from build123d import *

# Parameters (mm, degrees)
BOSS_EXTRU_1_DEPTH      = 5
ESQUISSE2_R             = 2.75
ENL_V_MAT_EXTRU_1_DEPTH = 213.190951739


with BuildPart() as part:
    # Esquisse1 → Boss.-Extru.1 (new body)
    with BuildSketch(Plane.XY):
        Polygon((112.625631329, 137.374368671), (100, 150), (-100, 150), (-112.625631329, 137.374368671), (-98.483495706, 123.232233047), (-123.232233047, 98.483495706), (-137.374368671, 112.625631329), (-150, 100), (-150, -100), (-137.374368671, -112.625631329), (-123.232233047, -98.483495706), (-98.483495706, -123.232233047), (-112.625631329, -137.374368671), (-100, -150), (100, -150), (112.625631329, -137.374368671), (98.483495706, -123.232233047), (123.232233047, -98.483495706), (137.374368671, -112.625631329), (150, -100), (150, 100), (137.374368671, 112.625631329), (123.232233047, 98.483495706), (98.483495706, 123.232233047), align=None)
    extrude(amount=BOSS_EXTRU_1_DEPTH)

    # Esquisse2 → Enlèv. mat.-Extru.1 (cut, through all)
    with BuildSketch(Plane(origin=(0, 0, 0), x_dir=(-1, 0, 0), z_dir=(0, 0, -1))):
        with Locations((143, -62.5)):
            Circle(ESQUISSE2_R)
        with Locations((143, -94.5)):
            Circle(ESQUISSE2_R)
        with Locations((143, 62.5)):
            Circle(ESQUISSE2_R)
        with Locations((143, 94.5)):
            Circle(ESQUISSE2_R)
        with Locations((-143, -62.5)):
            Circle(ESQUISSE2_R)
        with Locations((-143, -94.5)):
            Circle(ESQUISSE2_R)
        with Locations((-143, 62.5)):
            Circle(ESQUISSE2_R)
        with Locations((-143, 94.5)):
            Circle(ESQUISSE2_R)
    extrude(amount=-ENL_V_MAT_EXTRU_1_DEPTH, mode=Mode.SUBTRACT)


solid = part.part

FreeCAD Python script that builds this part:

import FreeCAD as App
import Part
import Sketcher
Q = App.Units.Quantity


def add_polygon(sketch, points):
    """Adds a closed chain of lines whose ends are joined by coincident constraints."""
    first, n = sketch.GeometryCount, len(points)
    for a, b in zip(points, points[1:] + points[:1]):
        sketch.addGeometry(Part.LineSegment(App.Vector(*a, 0), App.Vector(*b, 0)), False)
    for i in range(n):
        sketch.addConstraint(Sketcher.Constraint("Coincident", first + i, 2, first + (i + 1) % n, 1))

doc = App.newDocument("Part")
body = doc.addObject("PartDesign::Body", "Body")

sketch1 = body.newObject("Sketcher::SketchObject", "Sketch")
sketch1.AttachmentSupport = (doc.getObject("XY_Plane"), [""])
sketch1.MapMode = "FlatFace"
add_polygon(sketch1, [(113, 137), (100, 150), (-100, 150), (-113, 137), (-98, 123), (-123, 98), (-137, 113), (-150, 100), (-150, -100), (-137, -113), (-123, -98), (-98, -123), (-113, -137), (-100, -150), (100, -150), (113, -137), (98, -123), (123, -98), (137, -113), (150, -100), (150, 100), (137, 113), (123, 98), (98, 123)])
sketch1.addConstraint(Sketcher.Constraint("Horizontal", 1))
sketch1.addConstraint(Sketcher.Constraint("Vertical", 7))
sketch1.addConstraint(Sketcher.Constraint("Horizontal", 13))
sketch1.addConstraint(Sketcher.Constraint("Vertical", 19))
sketch1.addConstraint(Sketcher.Constraint("Symmetric", 0, 2, 12, 2, -1, 1))
sketch1.addConstraint(Sketcher.Constraint("Symmetric", 2, 2, 14, 2, -1, 1))
sketch1.addConstraint(Sketcher.Constraint("Symmetric", 3, 2, 15, 2, -1, 1))
sketch1.addConstraint(Sketcher.Constraint("Symmetric", 4, 2, 16, 2, -1, 1))
sketch1.addConstraint(Sketcher.Constraint("Symmetric", 5, 2, 17, 2, -1, 1))
sketch1.addConstraint(Sketcher.Constraint("Symmetric", 6, 2, 18, 2, -1, 1))
sketch1.addConstraint(Sketcher.Constraint("Symmetric", 8, 2, 20, 2, -1, 1))
sketch1.addConstraint(Sketcher.Constraint("Symmetric", 9, 2, 21, 2, -1, 1))
sketch1.addConstraint(Sketcher.Constraint("Symmetric", 10, 2, 22, 2, -1, 1))
sketch1.addConstraint(Sketcher.Constraint("Symmetric", 11, 2, 23, 2, -1, 1))
sketch1.addConstraint(Sketcher.Constraint("Symmetric", 11, 2, 14, 2, -2))
sketch1.addConstraint(Sketcher.Constraint("Symmetric", 10, 2, 15, 2, -2))
sketch1.addConstraint(Sketcher.Constraint("Symmetric", 9, 2, 16, 2, -2))
sketch1.addConstraint(Sketcher.Constraint("Symmetric", 8, 2, 17, 2, -2))
sketch1.addConstraint(Sketcher.Constraint("Perpendicular", 0, 2))
sketch1.addConstraint(Sketcher.Constraint("Perpendicular", 2, 3))
sketch1.addConstraint(Sketcher.Constraint("Perpendicular", 3, 4))
sketch1.addConstraint(Sketcher.Constraint("Perpendicular", 4, 5))
sketch1.addConstraint(Sketcher.Constraint("Perpendicular", 5, 6))
sketch1.addConstraint(Sketcher.Constraint("Perpendicular", 6, 8))
sketch1.addConstraint(Sketcher.Constraint("Perpendicular", 8, 9))
sketch1.addConstraint(Sketcher.Constraint("Perpendicular", 12, 14))
sketch1.addConstraint(Sketcher.Constraint("Perpendicular", 18, 20))
sketch1.addConstraint(Sketcher.Constraint("Equal", 13, 7))
sketch1.addConstraint(Sketcher.Constraint("Equal", 3, 5))
sketch1.addConstraint(Sketcher.Constraint("Equal", 2, 6))
sketch1.addConstraint(Sketcher.Constraint("DistanceX", 1, 2, 1, 1, Q("200 mm")))
sketch1.addConstraint(Sketcher.Constraint("Distance", 3, Q("20 mm")))
sketch1.addConstraint(Sketcher.Constraint("Distance", 4, Q("35 mm")))
sketch1.addConstraint(Sketcher.Constraint("DistanceY", -1, 1, 0, 2, Q("150 mm")))
pad1 = body.newObject("PartDesign::Pad", "Pad")
pad1.Profile = sketch1
pad1.Length = 5

sketch2 = body.newObject("Sketcher::SketchObject", "Sketch001")
sketch2.AttachmentSupport = (doc.getObject("XY_Plane"), [""])
sketch2.MapMode = "FlatFace"
sketch2.addGeometry(Part.Circle(App.Vector(-143, -62.5, 0), App.Vector(0, 0, 1), 2.8), False)
sketch2.addGeometry(Part.Circle(App.Vector(-143, -94.5, 0), App.Vector(0, 0, 1), 2.8), False)
sketch2.addGeometry(Part.Circle(App.Vector(-143, 62.5, 0), App.Vector(0, 0, 1), 2.8), False)
sketch2.addGeometry(Part.Circle(App.Vector(-143, 94.5, 0), App.Vector(0, 0, 1), 2.8), False)
sketch2.addGeometry(Part.Circle(App.Vector(143, -62.5, 0), App.Vector(0, 0, 1), 2.8), False)
sketch2.addGeometry(Part.Circle(App.Vector(143, -94.5, 0), App.Vector(0, 0, 1), 2.8), False)
sketch2.addGeometry(Part.Circle(App.Vector(143, 62.5, 0), App.Vector(0, 0, 1), 2.8), False)
sketch2.addGeometry(Part.Circle(App.Vector(143, 94.5, 0), App.Vector(0, 0, 1), 2.8), False)
sketch2.addConstraint(Sketcher.Constraint("Equal", 0, 1))
sketch2.addConstraint(Sketcher.Constraint("Equal", 1, 2))
sketch2.addConstraint(Sketcher.Constraint("Equal", 2, 3))
sketch2.addConstraint(Sketcher.Constraint("Equal", 3, 4))
sketch2.addConstraint(Sketcher.Constraint("Equal", 4, 5))
sketch2.addConstraint(Sketcher.Constraint("Equal", 5, 6))
sketch2.addConstraint(Sketcher.Constraint("Equal", 6, 7))
sketch2.addConstraint(Sketcher.Constraint("Symmetric", 2, 3, 4, 3, -1, 1))
sketch2.addConstraint(Sketcher.Constraint("Symmetric", 3, 3, 5, 3, -1, 1))
sketch2.addConstraint(Sketcher.Constraint("Symmetric", 0, 3, 6, 3, -1, 1))
sketch2.addConstraint(Sketcher.Constraint("Symmetric", 1, 3, 7, 3, -1, 1))
sketch2.addConstraint(Sketcher.Constraint("Symmetric", 0, 3, 4, 3, -2))
sketch2.addConstraint(Sketcher.Constraint("Symmetric", 1, 3, 5, 3, -2))
sketch2.addConstraint(Sketcher.Constraint("Vertical", 0, 3, 1, 3))
sketch2.addConstraint(Sketcher.Constraint("Diameter", 0, Q("5.5 mm")))
sketch2.addConstraint(Sketcher.Constraint("DistanceX", 0, 3, -1, 1, Q("143 mm")))
sketch2.addConstraint(Sketcher.Constraint("DistanceY", 1, 3, 0, 3, Q("32 mm")))
sketch2.addConstraint(Sketcher.Constraint("DistanceY", 0, 3, 2, 3, Q("125 mm")))
pocket1 = body.newObject("PartDesign::Pocket", "Pocket")
pocket1.Profile = sketch2
pocket1.Type = "ThroughAll"
pocket1.Reversed = True

doc.recompute()
